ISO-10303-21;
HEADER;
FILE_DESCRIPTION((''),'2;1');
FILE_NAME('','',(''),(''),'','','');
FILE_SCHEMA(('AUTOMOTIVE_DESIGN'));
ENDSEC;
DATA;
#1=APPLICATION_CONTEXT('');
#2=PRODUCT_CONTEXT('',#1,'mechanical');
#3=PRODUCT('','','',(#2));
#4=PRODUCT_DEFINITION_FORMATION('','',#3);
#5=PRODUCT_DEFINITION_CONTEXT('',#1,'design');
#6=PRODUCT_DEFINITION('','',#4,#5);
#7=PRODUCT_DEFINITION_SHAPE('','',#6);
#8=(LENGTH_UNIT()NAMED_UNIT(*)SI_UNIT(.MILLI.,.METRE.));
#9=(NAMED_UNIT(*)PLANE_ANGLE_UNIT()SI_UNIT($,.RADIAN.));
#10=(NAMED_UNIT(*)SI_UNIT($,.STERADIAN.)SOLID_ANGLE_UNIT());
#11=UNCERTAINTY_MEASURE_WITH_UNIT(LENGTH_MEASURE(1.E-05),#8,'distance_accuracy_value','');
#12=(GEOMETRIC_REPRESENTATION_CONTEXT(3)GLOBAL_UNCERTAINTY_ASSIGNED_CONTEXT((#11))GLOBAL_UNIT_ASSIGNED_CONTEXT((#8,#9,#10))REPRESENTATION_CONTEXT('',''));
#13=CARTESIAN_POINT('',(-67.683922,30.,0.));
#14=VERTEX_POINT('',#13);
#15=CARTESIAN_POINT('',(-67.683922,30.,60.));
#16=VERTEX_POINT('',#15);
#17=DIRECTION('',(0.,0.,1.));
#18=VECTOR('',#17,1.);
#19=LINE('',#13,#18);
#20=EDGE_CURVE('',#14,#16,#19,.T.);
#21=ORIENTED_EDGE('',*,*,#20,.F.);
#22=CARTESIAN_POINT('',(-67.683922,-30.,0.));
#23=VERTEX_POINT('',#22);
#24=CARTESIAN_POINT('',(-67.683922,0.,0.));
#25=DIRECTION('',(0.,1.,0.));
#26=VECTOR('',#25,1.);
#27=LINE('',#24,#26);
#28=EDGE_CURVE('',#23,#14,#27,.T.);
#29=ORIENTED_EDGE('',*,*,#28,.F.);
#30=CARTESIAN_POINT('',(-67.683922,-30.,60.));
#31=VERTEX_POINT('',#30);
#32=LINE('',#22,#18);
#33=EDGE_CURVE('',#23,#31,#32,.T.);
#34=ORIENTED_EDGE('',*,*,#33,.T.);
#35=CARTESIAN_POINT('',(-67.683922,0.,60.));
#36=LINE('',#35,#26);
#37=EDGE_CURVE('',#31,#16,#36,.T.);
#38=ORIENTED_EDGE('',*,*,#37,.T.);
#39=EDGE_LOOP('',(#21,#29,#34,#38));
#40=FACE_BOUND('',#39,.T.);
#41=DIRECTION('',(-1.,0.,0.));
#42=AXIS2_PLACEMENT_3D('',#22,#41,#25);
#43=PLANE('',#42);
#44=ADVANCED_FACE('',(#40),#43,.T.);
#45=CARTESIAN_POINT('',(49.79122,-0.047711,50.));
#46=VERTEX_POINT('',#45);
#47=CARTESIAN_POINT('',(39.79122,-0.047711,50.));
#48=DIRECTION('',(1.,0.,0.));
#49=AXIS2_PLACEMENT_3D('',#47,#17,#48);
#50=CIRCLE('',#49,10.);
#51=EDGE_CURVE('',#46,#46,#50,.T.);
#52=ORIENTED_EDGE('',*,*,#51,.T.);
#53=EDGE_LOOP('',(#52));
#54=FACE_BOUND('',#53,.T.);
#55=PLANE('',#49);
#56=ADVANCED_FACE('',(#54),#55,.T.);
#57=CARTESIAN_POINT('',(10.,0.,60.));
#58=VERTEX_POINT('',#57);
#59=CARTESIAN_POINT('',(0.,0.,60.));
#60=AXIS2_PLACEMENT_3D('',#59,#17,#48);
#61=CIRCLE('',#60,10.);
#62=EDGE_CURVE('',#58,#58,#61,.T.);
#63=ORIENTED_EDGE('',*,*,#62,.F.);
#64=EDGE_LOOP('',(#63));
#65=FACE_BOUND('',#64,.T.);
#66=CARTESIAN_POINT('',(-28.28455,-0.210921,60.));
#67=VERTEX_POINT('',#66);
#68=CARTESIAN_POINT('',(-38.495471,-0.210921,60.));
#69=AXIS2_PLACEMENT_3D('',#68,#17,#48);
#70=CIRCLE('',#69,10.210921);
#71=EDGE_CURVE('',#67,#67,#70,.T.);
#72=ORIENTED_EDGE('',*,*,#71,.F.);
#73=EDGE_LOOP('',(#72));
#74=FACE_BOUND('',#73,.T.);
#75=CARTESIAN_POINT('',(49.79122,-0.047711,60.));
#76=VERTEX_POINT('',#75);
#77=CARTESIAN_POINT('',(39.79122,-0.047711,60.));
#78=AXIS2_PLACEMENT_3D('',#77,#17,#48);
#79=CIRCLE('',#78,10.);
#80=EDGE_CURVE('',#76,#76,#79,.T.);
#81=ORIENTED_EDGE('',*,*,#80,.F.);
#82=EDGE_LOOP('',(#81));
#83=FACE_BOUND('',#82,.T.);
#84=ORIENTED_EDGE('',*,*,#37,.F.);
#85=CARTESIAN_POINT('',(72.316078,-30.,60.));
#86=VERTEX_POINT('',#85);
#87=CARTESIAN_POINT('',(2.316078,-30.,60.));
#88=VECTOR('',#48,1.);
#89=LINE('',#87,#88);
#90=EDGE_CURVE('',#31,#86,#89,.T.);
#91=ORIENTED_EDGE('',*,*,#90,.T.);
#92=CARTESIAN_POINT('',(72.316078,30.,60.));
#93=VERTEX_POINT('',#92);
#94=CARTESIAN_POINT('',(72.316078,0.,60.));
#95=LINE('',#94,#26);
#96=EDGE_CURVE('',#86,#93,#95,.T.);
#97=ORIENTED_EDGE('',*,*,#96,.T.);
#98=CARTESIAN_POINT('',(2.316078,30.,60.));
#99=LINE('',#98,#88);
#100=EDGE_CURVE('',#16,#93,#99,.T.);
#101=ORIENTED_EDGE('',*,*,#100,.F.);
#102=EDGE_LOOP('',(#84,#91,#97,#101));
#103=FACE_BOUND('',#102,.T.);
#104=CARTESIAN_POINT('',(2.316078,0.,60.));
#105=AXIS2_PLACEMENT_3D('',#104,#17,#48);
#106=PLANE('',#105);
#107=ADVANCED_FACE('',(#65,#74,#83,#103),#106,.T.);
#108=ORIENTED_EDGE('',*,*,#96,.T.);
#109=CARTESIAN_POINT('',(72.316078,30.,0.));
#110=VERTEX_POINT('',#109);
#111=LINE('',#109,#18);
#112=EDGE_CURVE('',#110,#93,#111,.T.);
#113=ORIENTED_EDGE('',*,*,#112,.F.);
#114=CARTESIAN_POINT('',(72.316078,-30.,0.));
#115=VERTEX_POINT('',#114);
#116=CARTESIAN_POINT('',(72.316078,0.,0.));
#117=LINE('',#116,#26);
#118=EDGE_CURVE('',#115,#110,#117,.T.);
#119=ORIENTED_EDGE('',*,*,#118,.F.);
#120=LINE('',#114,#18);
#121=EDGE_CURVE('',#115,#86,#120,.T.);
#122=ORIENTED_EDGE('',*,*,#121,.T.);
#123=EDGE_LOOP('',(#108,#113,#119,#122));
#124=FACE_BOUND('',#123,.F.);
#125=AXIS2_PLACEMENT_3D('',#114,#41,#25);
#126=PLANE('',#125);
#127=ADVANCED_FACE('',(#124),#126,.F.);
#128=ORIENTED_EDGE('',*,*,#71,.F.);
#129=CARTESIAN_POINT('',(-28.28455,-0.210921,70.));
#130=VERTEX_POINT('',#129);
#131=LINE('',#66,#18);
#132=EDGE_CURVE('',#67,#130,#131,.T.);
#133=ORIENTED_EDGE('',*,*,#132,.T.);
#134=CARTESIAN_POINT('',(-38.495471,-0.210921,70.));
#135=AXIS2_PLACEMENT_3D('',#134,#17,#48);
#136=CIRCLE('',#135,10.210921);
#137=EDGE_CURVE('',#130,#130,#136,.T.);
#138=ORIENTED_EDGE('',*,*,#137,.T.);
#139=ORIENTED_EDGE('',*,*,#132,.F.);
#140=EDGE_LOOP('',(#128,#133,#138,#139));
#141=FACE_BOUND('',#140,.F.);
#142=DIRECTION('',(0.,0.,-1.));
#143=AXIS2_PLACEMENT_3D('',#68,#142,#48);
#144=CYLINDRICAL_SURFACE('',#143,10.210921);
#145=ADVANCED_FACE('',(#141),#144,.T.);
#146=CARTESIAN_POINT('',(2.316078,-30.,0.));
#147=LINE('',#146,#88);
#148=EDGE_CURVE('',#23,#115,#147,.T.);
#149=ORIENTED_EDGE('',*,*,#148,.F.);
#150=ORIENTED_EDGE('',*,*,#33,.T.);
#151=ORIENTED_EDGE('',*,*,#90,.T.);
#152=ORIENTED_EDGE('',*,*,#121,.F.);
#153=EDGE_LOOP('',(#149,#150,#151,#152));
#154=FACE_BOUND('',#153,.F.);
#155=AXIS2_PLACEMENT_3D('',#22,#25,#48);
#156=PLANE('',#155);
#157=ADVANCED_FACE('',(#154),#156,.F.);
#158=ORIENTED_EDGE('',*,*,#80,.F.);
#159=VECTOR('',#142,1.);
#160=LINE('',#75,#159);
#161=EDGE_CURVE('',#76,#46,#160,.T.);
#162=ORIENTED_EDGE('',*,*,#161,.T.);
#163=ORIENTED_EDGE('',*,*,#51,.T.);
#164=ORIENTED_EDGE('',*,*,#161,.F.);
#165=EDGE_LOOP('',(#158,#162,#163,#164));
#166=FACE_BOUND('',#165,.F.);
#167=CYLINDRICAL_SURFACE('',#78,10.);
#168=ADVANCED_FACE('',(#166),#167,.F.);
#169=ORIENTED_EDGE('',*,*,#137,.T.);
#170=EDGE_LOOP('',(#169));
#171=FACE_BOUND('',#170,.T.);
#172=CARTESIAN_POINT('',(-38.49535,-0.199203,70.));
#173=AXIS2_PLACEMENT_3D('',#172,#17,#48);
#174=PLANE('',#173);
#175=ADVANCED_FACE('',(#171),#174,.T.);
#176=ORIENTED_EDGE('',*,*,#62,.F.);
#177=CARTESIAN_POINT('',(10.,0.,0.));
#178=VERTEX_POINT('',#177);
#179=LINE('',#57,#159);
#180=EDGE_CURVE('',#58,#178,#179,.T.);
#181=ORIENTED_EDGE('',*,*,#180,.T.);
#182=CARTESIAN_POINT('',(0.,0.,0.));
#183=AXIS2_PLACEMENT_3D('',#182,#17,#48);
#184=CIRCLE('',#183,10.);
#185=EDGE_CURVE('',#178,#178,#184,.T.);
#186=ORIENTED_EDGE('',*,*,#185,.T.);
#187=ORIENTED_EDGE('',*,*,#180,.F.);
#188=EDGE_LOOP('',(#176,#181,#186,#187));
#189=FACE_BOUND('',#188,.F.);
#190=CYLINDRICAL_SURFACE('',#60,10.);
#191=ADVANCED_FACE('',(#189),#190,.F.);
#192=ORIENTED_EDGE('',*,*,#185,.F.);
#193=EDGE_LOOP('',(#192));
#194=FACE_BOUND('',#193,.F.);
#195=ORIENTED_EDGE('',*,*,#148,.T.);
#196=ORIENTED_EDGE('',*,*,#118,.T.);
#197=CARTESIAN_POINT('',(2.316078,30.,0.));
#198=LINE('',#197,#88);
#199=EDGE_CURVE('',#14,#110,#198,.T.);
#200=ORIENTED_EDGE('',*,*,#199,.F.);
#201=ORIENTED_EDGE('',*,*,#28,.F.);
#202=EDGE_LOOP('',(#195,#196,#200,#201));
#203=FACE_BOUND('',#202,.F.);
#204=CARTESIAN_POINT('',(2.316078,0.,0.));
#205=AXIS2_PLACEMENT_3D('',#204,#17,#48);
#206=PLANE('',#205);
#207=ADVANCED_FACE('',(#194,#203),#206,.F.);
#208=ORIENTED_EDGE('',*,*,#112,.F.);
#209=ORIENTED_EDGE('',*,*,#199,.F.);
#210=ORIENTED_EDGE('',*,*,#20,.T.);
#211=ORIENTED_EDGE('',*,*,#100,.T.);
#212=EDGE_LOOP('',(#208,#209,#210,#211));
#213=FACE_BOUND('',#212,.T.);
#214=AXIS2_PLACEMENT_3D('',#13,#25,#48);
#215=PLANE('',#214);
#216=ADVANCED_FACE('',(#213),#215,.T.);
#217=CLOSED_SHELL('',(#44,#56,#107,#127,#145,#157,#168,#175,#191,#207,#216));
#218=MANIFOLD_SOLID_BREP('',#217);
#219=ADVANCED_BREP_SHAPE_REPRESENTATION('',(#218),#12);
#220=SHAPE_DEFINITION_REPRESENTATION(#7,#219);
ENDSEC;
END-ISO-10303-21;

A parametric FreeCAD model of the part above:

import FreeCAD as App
import Part
import Sketcher

V = App.Vector

doc = App.newDocument("Part")
body = doc.addObject("PartDesign::Body", "Body")

# Sketch on XY plane
sketch1 = body.newObject("Sketcher::SketchObject", "Sketch")
sketch1.AttachmentSupport = (doc.getObject("XY_Plane"), [""])
sketch1.MapMode = "FlatFace"
sketch1.addGeometry(Part.LineSegment(V(-68, 30, 0), V(-68, -30, 0)), False)
sketch1.addGeometry(Part.LineSegment(V(-68, -30, 0), V(72, -30, 0)), False)
sketch1.addGeometry(Part.LineSegment(V(72, -30, 0), V(72, 30, 0)), False)
sketch1.addGeometry(Part.LineSegment(V(72, 30, 0), V(-68, 30, 0)), False)
sketch1.addConstraint(Sketcher.Constraint("Coincident", 0, 2, 1, 1))
sketch1.addConstraint(Sketcher.Constraint("Coincident", 1, 2, 2, 1))
sketch1.addConstraint(Sketcher.Constraint("Coincident", 2, 2, 3, 1))
sketch1.addConstraint(Sketcher.Constraint("Coincident", 3, 2, 0, 1))
sketch1.addConstraint(Sketcher.Constraint("Vertical", 0))
sketch1.addConstraint(Sketcher.Constraint("Horizontal", 1))
sketch1.addConstraint(Sketcher.Constraint("Vertical", 2))
sketch1.addConstraint(Sketcher.Constraint("Horizontal", 3))
sketch1.addConstraint(Sketcher.Constraint("DistanceX", 1, 1, 1, 2, 140.0))
sketch1.addConstraint(Sketcher.Constraint("DistanceY", 0, 2, 0, 1, 60.0))
sketch1.addConstraint(Sketcher.Constraint("DistanceY", 0, 2, -1, 1, 30.0))
sketch1.addConstraint(Sketcher.Constraint("DistanceX", 0, 2, -1, 1, 67.683922))
pad1 = body.newObject("PartDesign::Pad", "Pad")
pad1.Profile = sketch1
pad1.Length = 60

# Sketch on XY plane
sketch2 = body.newObject("Sketcher::SketchObject", "Sketch001")
sketch2.AttachmentSupport = (doc.getObject("XY_Plane"), [""])
sketch2.MapMode = "FlatFace"
sketch2.AttachmentOffset = App.Placement(V(0, 0, 60), App.Rotation())
sketch2.addGeometry(Part.Circle(V(-38, 0, 0), V(0, 0, 1), 10), False)
sketch2.addConstraint(Sketcher.Constraint("Diameter", 0, 20.421842))
sketch2.addConstraint(Sketcher.Constraint("DistanceX", 0, 3, -1, 1, 38.495471))
sketch2.addConstraint(Sketcher.Constraint("DistanceY", 0, 3, -1, 1, 0.210921))
pad2 = body.newObject("PartDesign::Pad", "Pad001")
pad2.Profile = sketch2
pad2.Length = 10

# Sketch on XY plane
sketch3 = body.newObject("Sketcher::SketchObject", "Sketch002")
sketch3.AttachmentSupport = (doc.getObject("XY_Plane"), [""])
sketch3.MapMode = "FlatFace"
sketch3.AttachmentOffset = App.Placement(V(0, 0, 60), App.Rotation())
sketch3.addGeometry(Part.Circle(V(0, 0, 0), V(0, 0, 1), 10), False)
sketch3.addConstraint(Sketcher.Constraint("Coincident", 0, 3, -1, 1))
sketch3.addConstraint(Sketcher.Constraint("Diameter", 0, 20.0))
pocket1 = body.newObject("PartDesign::Pocket", "Pocket")
pocket1.Profile = sketch3
pocket1.Length = 110.6

# Sketch on XY plane
sketch4 = body.newObject("Sketcher::SketchObject", "Sketch003")
sketch4.AttachmentSupport = (doc.getObject("XY_Plane"), [""])
sketch4.MapMode = "FlatFace"
sketch4.AttachmentOffset = App.Placement(V(0, 0, 60), App.Rotation())
sketch4.addGeometry(Part.Circle(V(40, 0, 0), V(0, 0, 1), 10), False)
sketch4.addConstraint(Sketcher.Constraint("Diameter", 0, 20.0))
sketch4.addConstraint(Sketcher.Constraint("DistanceX", -1, 1, 0, 3, 39.79122))
sketch4.addConstraint(Sketcher.Constraint("DistanceY", 0, 3, -1, 1, 0.047711))
pocket2 = body.newObject("PartDesign::Pocket", "Pocket001")
pocket2.Profile = sketch4
pocket2.Length = 10

doc.recompute()
